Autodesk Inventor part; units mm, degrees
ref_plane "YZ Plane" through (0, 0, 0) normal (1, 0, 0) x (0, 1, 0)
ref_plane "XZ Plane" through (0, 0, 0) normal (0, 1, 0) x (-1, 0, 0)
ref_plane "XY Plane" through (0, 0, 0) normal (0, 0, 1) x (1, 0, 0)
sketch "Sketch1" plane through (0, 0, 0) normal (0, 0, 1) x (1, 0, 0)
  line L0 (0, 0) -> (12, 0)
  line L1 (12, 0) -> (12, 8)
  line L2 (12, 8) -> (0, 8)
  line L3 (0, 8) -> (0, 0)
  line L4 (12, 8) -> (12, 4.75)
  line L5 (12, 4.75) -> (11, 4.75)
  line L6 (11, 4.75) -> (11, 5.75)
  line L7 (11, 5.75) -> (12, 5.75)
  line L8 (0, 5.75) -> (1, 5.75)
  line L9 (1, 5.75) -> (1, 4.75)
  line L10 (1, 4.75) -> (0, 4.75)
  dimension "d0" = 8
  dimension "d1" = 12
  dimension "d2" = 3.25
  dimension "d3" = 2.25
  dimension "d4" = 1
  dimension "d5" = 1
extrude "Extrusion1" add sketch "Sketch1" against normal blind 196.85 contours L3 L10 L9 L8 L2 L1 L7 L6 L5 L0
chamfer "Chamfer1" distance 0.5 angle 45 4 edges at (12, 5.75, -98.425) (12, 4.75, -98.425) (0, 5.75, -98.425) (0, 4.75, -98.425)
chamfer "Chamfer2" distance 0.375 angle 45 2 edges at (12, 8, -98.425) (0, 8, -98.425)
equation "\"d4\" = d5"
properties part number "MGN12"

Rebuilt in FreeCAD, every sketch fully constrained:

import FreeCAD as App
import Part
import Sketcher
from FreeCAD import Vector
Q = App.Units.Quantity


def edges_at(feature, points):
    """Names of the edges that pass closest to the given points."""
    edges = feature.Shape.Edges
    near = lambda p: min(range(len(edges)), key=lambda i: edges[i].distToShape(Part.Vertex(*p))[0])
    return sorted({f"Edge{near(p) + 1}" for p in points})

doc = App.newDocument("Part")
params = doc.addObject("Spreadsheet::Sheet", "Params")
for row, (alias, value) in enumerate([
    ("sketch1_width", "12 mm"),
    ("sketch1_width2", "1 mm"),
    ("sketch1_height", "2.25 mm"),
    ("pad1_length", "196.85 mm"),
    ("chamfer_size", "0.5 mm"),
    ("chamfer2_size", "0.375 mm"),
], start=1):
    params.set(f"A{row}", alias)
    params.set(f"B{row}", "=" + value)
    params.setAlias(f"B{row}", alias)

body = doc.addObject("PartDesign::Body", "Body")

sketch1 = body.newObject("Sketcher::SketchObject", "Sketch")
sketch1.AttachmentSupport = (doc.getObject("XY_Plane"), [""])
sketch1.MapMode = "FlatFace"
sketch1.addGeometry(Part.LineSegment(Vector(0, 4.75, 0), Vector(0, 0, 0)), False)
sketch1.addGeometry(Part.LineSegment(Vector(0, 0, 0), Vector(12, 0, 0)), False)
sketch1.addGeometry(Part.LineSegment(Vector(12, 0, 0), Vector(12, 4.75, 0)), False)
sketch1.addGeometry(Part.LineSegment(Vector(12, 4.75, 0), Vector(11, 4.75, 0)), False)
sketch1.addGeometry(Part.LineSegment(Vector(11, 4.75, 0), Vector(11, 5.75, 0)), False)
sketch1.addGeometry(Part.LineSegment(Vector(11, 5.75, 0), Vector(12, 5.75, 0)), False)
sketch1.addGeometry(Part.LineSegment(Vector(12, 5.75, 0), Vector(12, 8, 0)), False)
sketch1.addGeometry(Part.LineSegment(Vector(12, 8, 0), Vector(0, 8, 0)), False)
sketch1.addGeometry(Part.LineSegment(Vector(0, 8, 0), Vector(0, 5.75, 0)), False)
sketch1.addGeometry(Part.LineSegment(Vector(0, 5.75, 0), Vector(1, 5.75, 0)), False)
sketch1.addGeometry(Part.LineSegment(Vector(1, 5.75, 0), Vector(1, 4.75, 0)), False)
sketch1.addGeometry(Part.LineSegment(Vector(1, 4.75, 0), Vector(0, 4.75, 0)), False)
sketch1.addConstraint(Sketcher.Constraint("Coincident", 0, 2, 1, 1))
sketch1.addConstraint(Sketcher.Constraint("Coincident", 1, 2, 2, 1))
sketch1.addConstraint(Sketcher.Constraint("Coincident", 2, 2, 3, 1))
sketch1.addConstraint(Sketcher.Constraint("Coincident", 3, 2, 4, 1))
sketch1.addConstraint(Sketcher.Constraint("Coincident", 4, 2, 5, 1))
sketch1.addConstraint(Sketcher.Constraint("Coincident", 5, 2, 6, 1))
sketch1.addConstraint(Sketcher.Constraint("Coincident", 6, 2, 7, 1))
sketch1.addConstraint(Sketcher.Constraint("Coincident", 7, 2, 8, 1))
sketch1.addConstraint(Sketcher.Constraint("Coincident", 8, 2, 9, 1))
sketch1.addConstraint(Sketcher.Constraint("Coincident", 9, 2, 10, 1))
sketch1.addConstraint(Sketcher.Constraint("Coincident", 10, 2, 11, 1))
sketch1.addConstraint(Sketcher.Constraint("Coincident", 11, 2, 0, 1))
sketch1.addConstraint(Sketcher.Constraint("Vertical", 0))
sketch1.addConstraint(Sketcher.Constraint("Horizontal", 1))
sketch1.addConstraint(Sketcher.Constraint("Vertical", 2))
sketch1.addConstraint(Sketcher.Constraint("Horizontal", 3))
sketch1.addConstraint(Sketcher.Constraint("Vertical", 4))
sketch1.addConstraint(Sketcher.Constraint("Horizontal", 5))
sketch1.addConstraint(Sketcher.Constraint("Vertical", 6))
sketch1.addConstraint(Sketcher.Constraint("Horizontal", 7))
sketch1.addConstraint(Sketcher.Constraint("Vertical", 8))
sketch1.addConstraint(Sketcher.Constraint("Horizontal", 9))
sketch1.addConstraint(Sketcher.Constraint("Vertical", 10))
sketch1.addConstraint(Sketcher.Constraint("Horizontal", 11))
sketch1.addConstraint(Sketcher.Constraint("Coincident", 0, 2, -1, 1))
sketch1.addConstraint(Sketcher.Constraint("PointOnObject", 7, 2, -2))
sketch1.addConstraint(Sketcher.Constraint("Horizontal", 5, 2, 8, 2))
sketch1.addConstraint(Sketcher.Constraint("Horizontal", 3, 2, 10, 2))
sketch1.addConstraint(Sketcher.Constraint("Vertical", 2, 2, 5, 2))
sketch1.addConstraint(Sketcher.Constraint("Equal", 5, 9))
sketch1.addConstraint(Sketcher.Constraint("Equal", 11, 4))
sketch1.addConstraint(Sketcher.Constraint("DistanceX", 1, 1, 1, 2, Q("12 mm")))
sketch1.addConstraint(Sketcher.Constraint("DistanceX", 3, 2, 3, 1, Q("1 mm")))
sketch1.addConstraint(Sketcher.Constraint("DistanceY", -1, 1, 6, 2, Q("8 mm")))
sketch1.addConstraint(Sketcher.Constraint("DistanceY", 6, 1, 6, 2, Q("2.25 mm")))
sketch1.setExpression("Constraints[31]", "Params.sketch1_width")
sketch1.setExpression("Constraints[32]", "Params.sketch1_width2")
sketch1.setExpression("Constraints[34]", "Params.sketch1_height")
pad1 = body.newObject("PartDesign::Pad", "Pad")
pad1.Profile = sketch1
pad1.setExpression("Length", "Params.pad1_length")
pad1.Reversed = True
doc.recompute()

chamfer = body.newObject("PartDesign::Chamfer", "Chamfer")
chamfer.Base = (pad1, edges_at(pad1, [
    (12, 5.75, -98.425),
    (12, 4.75, -98.425),
    (0, 5.75, -98.425),
    (0, 4.75, -98.425),
]))
chamfer.setExpression("Size", "Params.chamfer_size")
doc.recompute()

chamfer2 = body.newObject("PartDesign::Chamfer", "Chamfer001")
chamfer2.Base = (chamfer, edges_at(chamfer, [(12, 8, -98.425), (0, 8, -98.425)]))
chamfer2.setExpression("Size", "Params.chamfer2_size")

doc.recompute()
